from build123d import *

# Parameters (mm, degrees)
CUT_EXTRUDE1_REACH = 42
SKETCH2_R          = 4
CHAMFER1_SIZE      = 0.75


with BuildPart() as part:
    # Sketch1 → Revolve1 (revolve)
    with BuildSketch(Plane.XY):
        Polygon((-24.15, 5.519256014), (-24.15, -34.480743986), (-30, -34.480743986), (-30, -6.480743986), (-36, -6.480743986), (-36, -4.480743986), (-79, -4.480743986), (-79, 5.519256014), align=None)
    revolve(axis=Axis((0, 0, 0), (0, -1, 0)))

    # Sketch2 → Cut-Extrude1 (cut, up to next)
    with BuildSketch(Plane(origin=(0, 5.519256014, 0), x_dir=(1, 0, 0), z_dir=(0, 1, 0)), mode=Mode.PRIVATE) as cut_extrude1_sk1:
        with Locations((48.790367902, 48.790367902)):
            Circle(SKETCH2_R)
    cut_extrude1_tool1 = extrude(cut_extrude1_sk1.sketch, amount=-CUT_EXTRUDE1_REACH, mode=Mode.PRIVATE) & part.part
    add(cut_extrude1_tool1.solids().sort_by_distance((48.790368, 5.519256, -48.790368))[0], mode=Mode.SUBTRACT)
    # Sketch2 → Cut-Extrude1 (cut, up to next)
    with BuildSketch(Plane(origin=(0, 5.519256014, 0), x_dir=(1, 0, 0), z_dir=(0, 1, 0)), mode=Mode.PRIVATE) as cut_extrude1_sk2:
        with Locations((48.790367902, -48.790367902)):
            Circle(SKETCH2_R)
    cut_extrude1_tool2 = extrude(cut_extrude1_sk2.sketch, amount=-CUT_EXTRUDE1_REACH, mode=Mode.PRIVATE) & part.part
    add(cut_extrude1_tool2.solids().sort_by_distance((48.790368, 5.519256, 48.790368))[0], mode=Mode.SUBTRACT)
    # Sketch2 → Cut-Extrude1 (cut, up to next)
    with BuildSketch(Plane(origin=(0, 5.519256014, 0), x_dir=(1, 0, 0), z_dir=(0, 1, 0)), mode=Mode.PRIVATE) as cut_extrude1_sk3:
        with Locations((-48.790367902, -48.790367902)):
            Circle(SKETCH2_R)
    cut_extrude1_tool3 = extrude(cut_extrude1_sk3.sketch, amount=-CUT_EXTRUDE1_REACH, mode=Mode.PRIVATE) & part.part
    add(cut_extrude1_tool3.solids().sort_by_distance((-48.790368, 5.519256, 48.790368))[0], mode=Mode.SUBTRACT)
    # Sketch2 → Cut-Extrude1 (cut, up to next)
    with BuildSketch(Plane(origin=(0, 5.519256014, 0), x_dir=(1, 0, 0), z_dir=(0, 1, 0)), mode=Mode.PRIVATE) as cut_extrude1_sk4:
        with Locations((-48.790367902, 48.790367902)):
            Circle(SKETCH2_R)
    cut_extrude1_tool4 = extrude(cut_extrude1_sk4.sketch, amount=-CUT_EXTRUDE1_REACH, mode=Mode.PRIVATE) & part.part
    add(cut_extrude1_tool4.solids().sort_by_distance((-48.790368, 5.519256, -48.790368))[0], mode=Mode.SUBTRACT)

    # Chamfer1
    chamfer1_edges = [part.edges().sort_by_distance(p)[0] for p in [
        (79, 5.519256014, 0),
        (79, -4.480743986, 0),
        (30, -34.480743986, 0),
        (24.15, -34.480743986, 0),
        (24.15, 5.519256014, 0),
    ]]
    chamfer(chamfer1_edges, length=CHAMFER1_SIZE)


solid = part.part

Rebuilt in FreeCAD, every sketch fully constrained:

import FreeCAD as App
import Part
import Sketcher

V = App.Vector


def edges_at(feature, points):
    """Names of the edges that pass closest to the given points."""
    edges = feature.Shape.Edges
    near = lambda p: min(range(len(edges)), key=lambda i: edges[i].distToShape(Part.Vertex(*p))[0])
    return sorted({f"Edge{near(p) + 1}" for p in points})

doc = App.newDocument("Part")
body = doc.addObject("PartDesign::Body", "Body")

# Sketch on XY plane
sketch1 = body.newObject("Sketcher::SketchObject", "Sketch")
sketch1.AttachmentSupport = (doc.getObject("XY_Plane"), [""])
sketch1.MapMode = "FlatFace"
sketch1.addGeometry([
    Part.LineSegment(V(-24.1, -34.5, 0), V(-24.1, 5.5, 0)),  # 0
    Part.LineSegment(V(-24.1, 5.5, 0), V(-79, 5.5, 0)),  # 1
    Part.LineSegment(V(-79, 5.5, 0), V(-79, -4.5, 0)),  # 2
    Part.LineSegment(V(-79, -4.5, 0), V(-36, -4.5, 0)),  # 3
    Part.LineSegment(V(-36, -4.5, 0), V(-36, -6.5, 0)),  # 4
    Part.LineSegment(V(-36, -6.5, 0), V(-30, -6.5, 0)),  # 5
    Part.LineSegment(V(-30, -6.5, 0), V(-30, -34.5, 0)),  # 6
    Part.LineSegment(V(-30, -34.5, 0), V(-24.1, -34.5, 0)),  # 7
], False)
sketch1.addConstraint([
    Sketcher.Constraint("Coincident", 0, 2, 1, 1),
    Sketcher.Constraint("Coincident", 1, 2, 2, 1),
    Sketcher.Constraint("Coincident", 2, 2, 3, 1),
    Sketcher.Constraint("Coincident", 3, 2, 4, 1),
    Sketcher.Constraint("Coincident", 4, 2, 5, 1),
    Sketcher.Constraint("Coincident", 5, 2, 6, 1),
    Sketcher.Constraint("Coincident", 6, 2, 7, 1),
    Sketcher.Constraint("Coincident", 7, 2, 0, 1),
    Sketcher.Constraint("Vertical", 0),
    Sketcher.Constraint("Horizontal", 1),
    Sketcher.Constraint("Vertical", 2),
    Sketcher.Constraint("Horizontal", 3),
    Sketcher.Constraint("Vertical", 4),
    Sketcher.Constraint("Horizontal", 5),
    Sketcher.Constraint("Vertical", 6),
    Sketcher.Constraint("Horizontal", 7),
    Sketcher.Constraint("DistanceX", 3, 1, 3, 2, 43.0),
    Sketcher.Constraint("DistanceX", 5, 1, 5, 2, 6.0),
    Sketcher.Constraint("DistanceY", 0, 1, 0, 2, 40.0),
    Sketcher.Constraint("DistanceY", 2, 2, 2, 1, 10.0),
    Sketcher.Constraint("DistanceY", 4, 2, 4, 1, 2.0),
    Sketcher.Constraint("DistanceX", 1, 2, -1, 1, 79.0),
    Sketcher.Constraint("DistanceX", 1, 2, 1, 1, 54.85),
    Sketcher.Constraint("DistanceY", -1, 1, 0, 2, 5.519256),
])
revolution = body.newObject("PartDesign::Revolution", "Revolution")
revolution.Profile = sketch1
revolution.ReferenceAxis = (sketch1, ["V_Axis"])
revolution.Angle = 360

# Sketch on XZ plane
sketch2 = body.newObject("Sketcher::SketchObject", "Sketch001")
sketch2.AttachmentSupport = (doc.getObject("XZ_Plane"), [""])
sketch2.MapMode = "FlatFace"
sketch2.AttachmentOffset = App.Placement(V(0, 0, -5.519256), App.Rotation())
sketch2.addGeometry(Part.Circle(V(48.8, -48.8, 0), V(0, 0, 1), 4), False)
sketch2.addConstraint([
    Sketcher.Constraint("Diameter", 0, 8.0),
    Sketcher.Constraint("DistanceX", -1, 1, 0, 3, 48.790368),
    Sketcher.Constraint("DistanceY", 0, 3, -1, 1, 48.790368),
])
pocket1 = body.newObject("PartDesign::Pocket", "Pocket")
pocket1.Profile = sketch2
pocket1.Type = "UpToFirst"
pocket1.Reversed = True

# Sketch on XZ plane
sketch3 = body.newObject("Sketcher::SketchObject", "Sketch002")
sketch3.AttachmentSupport = (doc.getObject("XZ_Plane"), [""])
sketch3.MapMode = "FlatFace"
sketch3.AttachmentOffset = App.Placement(V(0, 0, -5.519256), App.Rotation())
sketch3.addGeometry(Part.Circle(V(48.8, 48.8, 0), V(0, 0, 1), 4), False)
sketch3.addConstraint([
    Sketcher.Constraint("Diameter", 0, 8.0),
    Sketcher.Constraint("DistanceX", -1, 1, 0, 3, 48.790368),
    Sketcher.Constraint("DistanceY", -1, 1, 0, 3, 48.790368),
])
pocket2 = body.newObject("PartDesign::Pocket", "Pocket001")
pocket2.Profile = sketch3
pocket2.Type = "UpToFirst"
pocket2.Reversed = True

# Sketch on XZ plane
sketch4 = body.newObject("Sketcher::SketchObject", "Sketch003")
sketch4.AttachmentSupport = (doc.getObject("XZ_Plane"), [""])
sketch4.MapMode = "FlatFace"
sketch4.AttachmentOffset = App.Placement(V(0, 0, -5.519256), App.Rotation())
sketch4.addGeometry(Part.Circle(V(-48.8, 48.8, 0), V(0, 0, 1), 4), False)
sketch4.addConstraint([
    Sketcher.Constraint("Diameter", 0, 8.0),
    Sketcher.Constraint("DistanceX", 0, 3, -1, 1, 48.790368),
    Sketcher.Constraint("DistanceY", -1, 1, 0, 3, 48.790368),
])
pocket3 = body.newObject("PartDesign::Pocket", "Pocket002")
pocket3.Profile = sketch4
pocket3.Type = "UpToFirst"
pocket3.Reversed = True

# Sketch on XZ plane
sketch5 = body.newObject("Sketcher::SketchObject", "Sketch004")
sketch5.AttachmentSupport = (doc.getObject("XZ_Plane"), [""])
sketch5.MapMode = "FlatFace"
sketch5.AttachmentOffset = App.Placement(V(0, 0, -5.519256), App.Rotation())
sketch5.addGeometry(Part.Circle(V(-48.8, -48.8, 0), V(0, 0, 1), 4), False)
sketch5.addConstraint([
    Sketcher.Constraint("Diameter", 0, 8.0),
    Sketcher.Constraint("DistanceX", 0, 3, -1, 1, 48.790368),
    Sketcher.Constraint("DistanceY", 0, 3, -1, 1, 48.790368),
])
pocket4 = body.newObject("PartDesign::Pocket", "Pocket003")
pocket4.Profile = sketch5
pocket4.Type = "UpToFirst"
pocket4.Reversed = True
doc.recompute()

chamfer = body.newObject("PartDesign::Chamfer", "Chamfer")
chamfer.Base = (pocket4, edges_at(pocket4, [
    (79, 5.519, 0),
    (79, -4.481, 0),
    (30, -34.481, 0),
    (24.15, -34.481, 0),
    (24.15, 5.519, 0),
]))
chamfer.Size = 0.75

doc.recompute()
